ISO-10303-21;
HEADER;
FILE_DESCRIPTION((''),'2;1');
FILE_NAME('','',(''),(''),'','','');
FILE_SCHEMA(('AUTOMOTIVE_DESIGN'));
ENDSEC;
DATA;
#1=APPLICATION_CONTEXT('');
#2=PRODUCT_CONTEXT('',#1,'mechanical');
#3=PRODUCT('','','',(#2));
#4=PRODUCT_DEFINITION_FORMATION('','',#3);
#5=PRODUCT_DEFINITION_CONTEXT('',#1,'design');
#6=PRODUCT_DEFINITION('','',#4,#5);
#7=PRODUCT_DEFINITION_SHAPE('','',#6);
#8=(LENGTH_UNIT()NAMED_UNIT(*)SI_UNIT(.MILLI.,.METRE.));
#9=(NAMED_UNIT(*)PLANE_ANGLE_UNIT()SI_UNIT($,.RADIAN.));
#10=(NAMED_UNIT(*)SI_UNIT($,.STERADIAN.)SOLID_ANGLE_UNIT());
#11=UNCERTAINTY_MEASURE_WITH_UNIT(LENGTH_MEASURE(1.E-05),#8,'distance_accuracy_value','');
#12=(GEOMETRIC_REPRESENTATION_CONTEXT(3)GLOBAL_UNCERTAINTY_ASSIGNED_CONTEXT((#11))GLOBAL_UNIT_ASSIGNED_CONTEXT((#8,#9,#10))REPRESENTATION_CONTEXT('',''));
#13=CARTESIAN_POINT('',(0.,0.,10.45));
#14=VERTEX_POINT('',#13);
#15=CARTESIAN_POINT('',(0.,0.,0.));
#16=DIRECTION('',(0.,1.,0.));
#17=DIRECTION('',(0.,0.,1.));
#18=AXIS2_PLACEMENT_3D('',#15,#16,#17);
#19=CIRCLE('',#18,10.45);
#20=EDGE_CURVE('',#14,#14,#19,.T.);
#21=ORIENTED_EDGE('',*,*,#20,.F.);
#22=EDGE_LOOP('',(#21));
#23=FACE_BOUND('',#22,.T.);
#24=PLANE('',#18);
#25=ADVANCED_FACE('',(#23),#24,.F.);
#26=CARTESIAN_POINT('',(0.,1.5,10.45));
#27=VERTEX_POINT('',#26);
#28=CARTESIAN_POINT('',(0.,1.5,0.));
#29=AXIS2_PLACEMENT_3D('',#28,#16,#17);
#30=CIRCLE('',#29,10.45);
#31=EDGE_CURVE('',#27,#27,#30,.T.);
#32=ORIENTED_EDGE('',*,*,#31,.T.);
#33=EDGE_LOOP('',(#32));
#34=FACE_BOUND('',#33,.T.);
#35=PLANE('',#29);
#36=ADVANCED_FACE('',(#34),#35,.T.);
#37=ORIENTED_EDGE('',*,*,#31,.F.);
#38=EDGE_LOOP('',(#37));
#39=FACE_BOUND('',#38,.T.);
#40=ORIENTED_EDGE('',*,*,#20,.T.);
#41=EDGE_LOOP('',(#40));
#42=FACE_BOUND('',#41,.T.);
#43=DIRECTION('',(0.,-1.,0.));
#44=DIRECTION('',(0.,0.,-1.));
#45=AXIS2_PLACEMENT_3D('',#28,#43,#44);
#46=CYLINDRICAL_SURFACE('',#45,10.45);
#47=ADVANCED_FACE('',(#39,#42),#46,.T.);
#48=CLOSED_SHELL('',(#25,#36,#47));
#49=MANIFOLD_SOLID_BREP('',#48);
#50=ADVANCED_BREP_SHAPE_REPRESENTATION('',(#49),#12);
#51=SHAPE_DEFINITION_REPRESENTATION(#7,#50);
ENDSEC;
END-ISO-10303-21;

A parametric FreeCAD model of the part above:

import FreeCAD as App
import Part
import Sketcher
from FreeCAD import Vector
Q = App.Units.Quantity

doc = App.newDocument("Part")
body = doc.addObject("PartDesign::Body", "Body")

sketch1 = body.newObject("Sketcher::SketchObject", "Sketch")
sketch1.AttachmentSupport = (doc.getObject("XZ_Plane"), [""])
sketch1.MapMode = "FlatFace"
sketch1.addGeometry(Part.Circle(Vector(0, 0, 0), Vector(0, 0, 1), 10), False)
sketch1.addConstraint([
    Sketcher.Constraint("Coincident", 0, 3, -1, 1),
    Sketcher.Constraint("Diameter", 0, Q("20.9 mm")),
])
pad1 = body.newObject("PartDesign::Pad", "Pad")
pad1.Profile = sketch1
pad1.Length = 1.5
pad1.Reversed = True

doc.recompute()
